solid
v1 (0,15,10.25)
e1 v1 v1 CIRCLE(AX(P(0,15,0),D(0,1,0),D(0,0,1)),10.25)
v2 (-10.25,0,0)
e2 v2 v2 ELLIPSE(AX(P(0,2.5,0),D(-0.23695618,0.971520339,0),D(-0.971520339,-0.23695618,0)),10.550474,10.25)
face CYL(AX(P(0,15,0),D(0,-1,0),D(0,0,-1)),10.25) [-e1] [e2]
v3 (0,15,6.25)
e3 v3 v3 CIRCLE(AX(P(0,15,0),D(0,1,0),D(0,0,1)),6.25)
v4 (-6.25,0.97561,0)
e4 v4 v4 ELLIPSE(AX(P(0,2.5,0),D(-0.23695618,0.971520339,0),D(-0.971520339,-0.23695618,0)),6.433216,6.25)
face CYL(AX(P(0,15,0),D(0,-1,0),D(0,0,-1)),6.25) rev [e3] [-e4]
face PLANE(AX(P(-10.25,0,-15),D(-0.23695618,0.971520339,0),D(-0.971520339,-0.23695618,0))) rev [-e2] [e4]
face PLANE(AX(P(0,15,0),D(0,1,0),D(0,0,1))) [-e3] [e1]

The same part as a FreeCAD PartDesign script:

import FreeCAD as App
import Part
import Sketcher


def add_polygon(sketch, points):
    """Adds a closed chain of lines whose ends are joined by coincident constraints."""
    first, n = sketch.GeometryCount, len(points)
    for a, b in zip(points, points[1:] + points[:1]):
        sketch.addGeometry(Part.LineSegment(App.Vector(*a, 0), App.Vector(*b, 0)), False)
    for i in range(n):
        sketch.addConstraint(Sketcher.Constraint("Coincident", first + i, 2, first + (i + 1) % n, 1))

doc = App.newDocument("Part")
params = doc.addObject("Spreadsheet::Sheet", "Params")
for row, (alias, value) in enumerate([
    ("sketch1_diameter", "20.5 mm"),
    ("sketch1_diameter2", "12.5 mm"),
    ("pad1_length", "15 mm"),
    ("sketch2_height", "5 mm"),
    ("sketch2_width", "20.5 mm"),
    ("pocket1_length", "30 mm"),
], start=1):
    params.set(f"A{row}", alias)
    params.set(f"B{row}", "=" + value)
    params.setAlias(f"B{row}", alias)

body = doc.addObject("PartDesign::Body", "Body")

sketch1 = body.newObject("Sketcher::SketchObject", "Sketch")
sketch1.AttachmentSupport = (doc.getObject("XZ_Plane"), [""])
sketch1.MapMode = "FlatFace"
sketch1.addGeometry([
    Part.Circle(App.Vector(0, 0, 0), App.Vector(0, 0, 1), 10),
    Part.Circle(App.Vector(0, 0, 0), App.Vector(0, 0, 1), 6),
], False)
sketch1.addConstraint([
    Sketcher.Constraint("Coincident", 0, 3, -1, 1),
    Sketcher.Constraint("Coincident", 1, 3, -1, 1),
    Sketcher.Constraint("Diameter", 0, 20.5),
    Sketcher.Constraint("Diameter", 1, 12.5),
])
sketch1.setExpression("Constraints[2]", "Params.sketch1_diameter")
sketch1.setExpression("Constraints[3]", "Params.sketch1_diameter2")
pad1 = body.newObject("PartDesign::Pad", "Pad")
pad1.Profile = sketch1
pad1.setExpression("Length", "Params.pad1_length")
pad1.Reversed = True

sketch2 = body.newObject("Sketcher::SketchObject", "Sketch001")
sketch2.AttachmentSupport = (doc.getObject("XY_Plane"), [""])
sketch2.MapMode = "FlatFace"
add_polygon(sketch2, [(10, 5), (-10, 0), (10, 0)])
sketch2.addConstraint([
    Sketcher.Constraint("Horizontal", 1),
    Sketcher.Constraint("Vertical", 2),
    Sketcher.Constraint("Symmetric", 0, 2, 1, 2, -1, 1),
    Sketcher.Constraint("DistanceY", 2, 1, 2, 2, 5.0),
    Sketcher.Constraint("DistanceX", 1, 1, 1, 2, 20.5),
])
sketch2.setExpression("Constraints[6]", "Params.sketch2_height")
sketch2.setExpression("Constraints[7]", "Params.sketch2_width")
pocket1 = body.newObject("PartDesign::Pocket", "Pocket")
pocket1.Profile = sketch2
pocket1.setExpression("Length", "Params.pocket1_length")
pocket1.Midplane = True

doc.recompute()
